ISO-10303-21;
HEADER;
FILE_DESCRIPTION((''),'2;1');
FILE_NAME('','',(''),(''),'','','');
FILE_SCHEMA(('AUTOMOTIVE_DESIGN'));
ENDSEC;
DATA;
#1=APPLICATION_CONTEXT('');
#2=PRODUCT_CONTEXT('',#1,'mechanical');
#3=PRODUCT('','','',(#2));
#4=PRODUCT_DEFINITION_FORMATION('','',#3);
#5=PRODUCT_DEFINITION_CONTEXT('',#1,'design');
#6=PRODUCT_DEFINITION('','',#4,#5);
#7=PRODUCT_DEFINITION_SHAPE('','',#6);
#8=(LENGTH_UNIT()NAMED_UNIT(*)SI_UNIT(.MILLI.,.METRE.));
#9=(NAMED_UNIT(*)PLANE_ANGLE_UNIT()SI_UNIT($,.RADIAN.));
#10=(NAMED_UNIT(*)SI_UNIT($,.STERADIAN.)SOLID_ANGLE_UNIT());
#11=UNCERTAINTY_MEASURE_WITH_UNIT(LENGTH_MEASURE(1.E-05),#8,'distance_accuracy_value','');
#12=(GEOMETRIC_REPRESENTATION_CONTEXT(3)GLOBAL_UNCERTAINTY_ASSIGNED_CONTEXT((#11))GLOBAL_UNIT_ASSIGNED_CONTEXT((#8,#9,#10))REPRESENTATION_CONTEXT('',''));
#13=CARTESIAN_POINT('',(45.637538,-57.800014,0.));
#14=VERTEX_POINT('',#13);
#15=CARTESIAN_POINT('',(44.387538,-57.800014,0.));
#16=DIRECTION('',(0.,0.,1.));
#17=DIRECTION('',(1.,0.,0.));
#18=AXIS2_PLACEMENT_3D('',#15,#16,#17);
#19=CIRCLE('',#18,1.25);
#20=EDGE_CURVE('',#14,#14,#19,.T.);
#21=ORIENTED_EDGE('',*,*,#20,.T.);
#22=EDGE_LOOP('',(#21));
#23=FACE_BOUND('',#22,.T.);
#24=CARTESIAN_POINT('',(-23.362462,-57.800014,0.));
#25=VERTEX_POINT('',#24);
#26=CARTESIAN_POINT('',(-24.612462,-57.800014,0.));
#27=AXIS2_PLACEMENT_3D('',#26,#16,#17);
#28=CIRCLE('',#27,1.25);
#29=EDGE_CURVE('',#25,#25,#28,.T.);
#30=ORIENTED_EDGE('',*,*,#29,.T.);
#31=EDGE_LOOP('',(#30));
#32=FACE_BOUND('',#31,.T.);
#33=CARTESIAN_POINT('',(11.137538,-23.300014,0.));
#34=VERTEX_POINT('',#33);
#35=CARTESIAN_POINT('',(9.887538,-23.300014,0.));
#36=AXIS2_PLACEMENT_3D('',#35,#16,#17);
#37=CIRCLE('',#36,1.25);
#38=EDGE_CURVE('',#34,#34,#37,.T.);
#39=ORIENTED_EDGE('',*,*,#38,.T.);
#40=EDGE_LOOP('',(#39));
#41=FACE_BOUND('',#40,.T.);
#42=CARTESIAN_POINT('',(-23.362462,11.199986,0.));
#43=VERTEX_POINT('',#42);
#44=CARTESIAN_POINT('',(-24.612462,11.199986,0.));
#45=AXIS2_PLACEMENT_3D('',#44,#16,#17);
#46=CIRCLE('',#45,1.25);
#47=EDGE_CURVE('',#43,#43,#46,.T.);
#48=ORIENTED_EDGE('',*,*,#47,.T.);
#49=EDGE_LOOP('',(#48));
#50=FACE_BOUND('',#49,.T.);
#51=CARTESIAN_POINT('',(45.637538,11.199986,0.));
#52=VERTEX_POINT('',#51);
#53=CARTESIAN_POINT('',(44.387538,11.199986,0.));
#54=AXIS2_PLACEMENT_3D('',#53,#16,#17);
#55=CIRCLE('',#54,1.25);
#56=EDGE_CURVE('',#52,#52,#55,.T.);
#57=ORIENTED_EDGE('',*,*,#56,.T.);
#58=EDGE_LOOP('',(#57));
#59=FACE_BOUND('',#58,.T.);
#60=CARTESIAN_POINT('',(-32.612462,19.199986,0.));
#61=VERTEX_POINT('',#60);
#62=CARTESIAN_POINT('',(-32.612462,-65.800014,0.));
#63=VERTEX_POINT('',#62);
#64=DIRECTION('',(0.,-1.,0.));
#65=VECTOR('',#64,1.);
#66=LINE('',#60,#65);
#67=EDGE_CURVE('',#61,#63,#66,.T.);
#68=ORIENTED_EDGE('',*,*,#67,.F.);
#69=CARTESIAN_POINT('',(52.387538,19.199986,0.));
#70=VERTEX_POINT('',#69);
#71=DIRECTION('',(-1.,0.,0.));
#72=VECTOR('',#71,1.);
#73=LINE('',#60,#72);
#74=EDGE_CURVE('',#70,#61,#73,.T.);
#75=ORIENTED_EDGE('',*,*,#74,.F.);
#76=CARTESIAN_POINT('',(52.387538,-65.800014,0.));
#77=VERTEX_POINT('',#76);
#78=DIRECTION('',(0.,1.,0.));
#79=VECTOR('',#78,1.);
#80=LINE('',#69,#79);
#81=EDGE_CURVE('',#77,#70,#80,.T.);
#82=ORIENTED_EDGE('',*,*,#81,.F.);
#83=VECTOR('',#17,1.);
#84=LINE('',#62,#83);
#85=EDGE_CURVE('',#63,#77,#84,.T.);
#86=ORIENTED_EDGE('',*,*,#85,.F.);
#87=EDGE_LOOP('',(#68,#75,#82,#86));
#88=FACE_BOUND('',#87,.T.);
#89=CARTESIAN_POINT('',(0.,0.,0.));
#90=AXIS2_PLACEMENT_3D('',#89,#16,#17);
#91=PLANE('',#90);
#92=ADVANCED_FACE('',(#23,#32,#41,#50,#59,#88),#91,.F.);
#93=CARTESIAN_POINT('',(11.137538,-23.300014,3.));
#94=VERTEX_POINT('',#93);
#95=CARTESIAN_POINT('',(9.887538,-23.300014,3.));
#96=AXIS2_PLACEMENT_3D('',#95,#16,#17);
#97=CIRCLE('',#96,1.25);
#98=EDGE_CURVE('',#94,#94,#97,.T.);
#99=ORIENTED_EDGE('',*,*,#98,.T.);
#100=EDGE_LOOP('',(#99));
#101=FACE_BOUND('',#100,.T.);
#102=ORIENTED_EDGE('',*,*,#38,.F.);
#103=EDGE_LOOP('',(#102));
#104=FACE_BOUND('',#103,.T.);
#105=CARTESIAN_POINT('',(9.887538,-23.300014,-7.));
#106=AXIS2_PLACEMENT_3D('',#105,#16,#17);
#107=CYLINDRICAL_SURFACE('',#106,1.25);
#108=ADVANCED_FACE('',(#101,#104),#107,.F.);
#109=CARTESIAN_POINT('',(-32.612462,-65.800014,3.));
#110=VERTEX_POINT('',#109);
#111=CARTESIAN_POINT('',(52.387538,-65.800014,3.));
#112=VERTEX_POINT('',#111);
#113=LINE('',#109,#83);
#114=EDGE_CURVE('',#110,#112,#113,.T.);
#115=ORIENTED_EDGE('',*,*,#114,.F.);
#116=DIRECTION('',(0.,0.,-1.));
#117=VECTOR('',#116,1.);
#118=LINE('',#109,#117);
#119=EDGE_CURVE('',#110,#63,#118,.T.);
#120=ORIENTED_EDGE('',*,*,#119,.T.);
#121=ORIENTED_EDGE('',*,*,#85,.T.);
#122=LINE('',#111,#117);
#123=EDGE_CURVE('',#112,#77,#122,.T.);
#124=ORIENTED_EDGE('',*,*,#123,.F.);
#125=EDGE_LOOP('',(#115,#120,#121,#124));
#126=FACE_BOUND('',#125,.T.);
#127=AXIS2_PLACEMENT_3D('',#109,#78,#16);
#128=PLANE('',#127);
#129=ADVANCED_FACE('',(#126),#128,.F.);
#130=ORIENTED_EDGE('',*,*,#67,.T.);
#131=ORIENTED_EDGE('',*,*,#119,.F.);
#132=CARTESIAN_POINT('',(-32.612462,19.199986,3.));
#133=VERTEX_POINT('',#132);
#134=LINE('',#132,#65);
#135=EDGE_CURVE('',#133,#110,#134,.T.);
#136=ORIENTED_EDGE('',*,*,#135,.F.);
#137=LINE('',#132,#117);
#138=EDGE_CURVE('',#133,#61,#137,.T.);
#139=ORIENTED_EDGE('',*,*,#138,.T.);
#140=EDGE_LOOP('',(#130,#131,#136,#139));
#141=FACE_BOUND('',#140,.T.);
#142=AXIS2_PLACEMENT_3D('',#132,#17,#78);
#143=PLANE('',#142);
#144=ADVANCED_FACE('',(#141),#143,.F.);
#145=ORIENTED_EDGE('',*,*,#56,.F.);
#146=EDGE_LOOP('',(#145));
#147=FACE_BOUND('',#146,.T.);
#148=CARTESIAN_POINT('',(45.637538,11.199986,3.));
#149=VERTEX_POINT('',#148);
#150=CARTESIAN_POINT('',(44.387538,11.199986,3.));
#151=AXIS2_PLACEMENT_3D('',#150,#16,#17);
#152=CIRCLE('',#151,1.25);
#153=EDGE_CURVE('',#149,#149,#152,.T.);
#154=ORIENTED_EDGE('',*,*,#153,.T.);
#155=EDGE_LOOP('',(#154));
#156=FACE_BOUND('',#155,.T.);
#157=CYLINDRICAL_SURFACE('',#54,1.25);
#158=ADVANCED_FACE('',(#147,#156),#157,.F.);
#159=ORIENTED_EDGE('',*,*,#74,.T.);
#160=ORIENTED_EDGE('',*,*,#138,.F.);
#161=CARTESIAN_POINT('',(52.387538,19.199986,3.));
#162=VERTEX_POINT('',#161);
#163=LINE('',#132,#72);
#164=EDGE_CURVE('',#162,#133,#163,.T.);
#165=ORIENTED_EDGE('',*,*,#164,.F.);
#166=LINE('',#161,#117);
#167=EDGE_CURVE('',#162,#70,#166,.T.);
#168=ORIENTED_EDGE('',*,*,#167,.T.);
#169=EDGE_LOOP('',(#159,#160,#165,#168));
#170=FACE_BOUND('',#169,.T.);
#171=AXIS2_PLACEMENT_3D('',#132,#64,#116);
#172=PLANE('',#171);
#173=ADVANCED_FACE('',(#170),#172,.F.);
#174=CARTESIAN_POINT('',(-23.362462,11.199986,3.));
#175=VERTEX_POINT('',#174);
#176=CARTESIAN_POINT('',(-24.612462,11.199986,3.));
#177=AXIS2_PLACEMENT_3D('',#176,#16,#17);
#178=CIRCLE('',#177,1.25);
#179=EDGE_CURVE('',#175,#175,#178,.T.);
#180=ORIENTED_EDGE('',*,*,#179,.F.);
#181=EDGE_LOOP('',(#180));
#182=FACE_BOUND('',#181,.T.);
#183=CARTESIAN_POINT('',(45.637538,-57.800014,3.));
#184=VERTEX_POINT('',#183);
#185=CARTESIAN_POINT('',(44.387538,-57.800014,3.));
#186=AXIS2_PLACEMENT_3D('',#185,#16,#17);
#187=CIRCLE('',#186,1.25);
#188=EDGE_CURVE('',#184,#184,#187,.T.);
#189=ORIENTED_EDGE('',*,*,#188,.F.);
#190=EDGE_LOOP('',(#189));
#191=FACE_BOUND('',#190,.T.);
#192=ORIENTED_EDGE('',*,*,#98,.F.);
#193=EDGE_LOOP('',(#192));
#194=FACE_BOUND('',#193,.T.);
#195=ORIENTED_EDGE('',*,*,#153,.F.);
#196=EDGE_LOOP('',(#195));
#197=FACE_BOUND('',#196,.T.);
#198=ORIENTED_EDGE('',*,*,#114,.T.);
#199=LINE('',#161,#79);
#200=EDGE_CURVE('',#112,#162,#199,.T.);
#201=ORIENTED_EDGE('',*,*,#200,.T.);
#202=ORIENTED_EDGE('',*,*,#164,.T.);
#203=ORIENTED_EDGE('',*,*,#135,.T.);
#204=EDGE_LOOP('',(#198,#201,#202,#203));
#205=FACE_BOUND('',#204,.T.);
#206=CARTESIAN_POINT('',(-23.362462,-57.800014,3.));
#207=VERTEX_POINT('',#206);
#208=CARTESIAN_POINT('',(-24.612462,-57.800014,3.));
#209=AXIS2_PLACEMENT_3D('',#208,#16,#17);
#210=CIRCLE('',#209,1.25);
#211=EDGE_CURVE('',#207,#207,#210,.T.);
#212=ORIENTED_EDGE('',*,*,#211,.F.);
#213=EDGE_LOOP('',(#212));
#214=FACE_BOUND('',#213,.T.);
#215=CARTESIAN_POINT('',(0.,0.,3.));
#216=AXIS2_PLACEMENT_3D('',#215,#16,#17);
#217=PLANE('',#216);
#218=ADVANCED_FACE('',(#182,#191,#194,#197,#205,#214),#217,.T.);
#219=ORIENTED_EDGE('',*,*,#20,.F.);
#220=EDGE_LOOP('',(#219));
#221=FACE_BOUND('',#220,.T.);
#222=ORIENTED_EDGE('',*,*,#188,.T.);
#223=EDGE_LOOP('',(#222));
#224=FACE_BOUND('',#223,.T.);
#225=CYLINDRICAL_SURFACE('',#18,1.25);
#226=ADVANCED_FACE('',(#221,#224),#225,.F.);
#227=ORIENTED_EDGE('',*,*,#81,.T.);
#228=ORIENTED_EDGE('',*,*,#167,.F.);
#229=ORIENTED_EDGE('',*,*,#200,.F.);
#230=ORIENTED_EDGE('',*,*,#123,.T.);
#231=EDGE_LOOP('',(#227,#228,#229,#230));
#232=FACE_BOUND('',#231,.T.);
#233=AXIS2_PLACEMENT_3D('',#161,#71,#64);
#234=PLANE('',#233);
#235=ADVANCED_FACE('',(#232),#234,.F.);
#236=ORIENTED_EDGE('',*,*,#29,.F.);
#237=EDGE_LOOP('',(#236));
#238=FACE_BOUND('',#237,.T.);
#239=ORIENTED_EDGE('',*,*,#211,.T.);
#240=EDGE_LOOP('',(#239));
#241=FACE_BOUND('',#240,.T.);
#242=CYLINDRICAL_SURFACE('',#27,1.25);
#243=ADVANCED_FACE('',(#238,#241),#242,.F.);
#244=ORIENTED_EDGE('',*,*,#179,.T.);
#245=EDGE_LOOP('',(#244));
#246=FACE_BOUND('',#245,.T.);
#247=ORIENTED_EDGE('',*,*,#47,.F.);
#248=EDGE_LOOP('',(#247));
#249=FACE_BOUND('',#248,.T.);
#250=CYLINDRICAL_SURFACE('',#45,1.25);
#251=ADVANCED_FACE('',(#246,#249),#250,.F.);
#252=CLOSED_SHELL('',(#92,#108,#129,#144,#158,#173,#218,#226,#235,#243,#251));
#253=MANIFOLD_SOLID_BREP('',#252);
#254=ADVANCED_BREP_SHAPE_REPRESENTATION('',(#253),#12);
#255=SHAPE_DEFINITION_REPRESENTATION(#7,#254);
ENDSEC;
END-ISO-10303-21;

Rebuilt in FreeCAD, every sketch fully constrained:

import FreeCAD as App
import Part
import Sketcher
Q = App.Units.Quantity


def add_polygon(sketch, points):
    """Adds a closed chain of lines whose ends are joined by coincident constraints."""
    first, n = sketch.GeometryCount, len(points)
    for a, b in zip(points, points[1:] + points[:1]):
        sketch.addGeometry(Part.LineSegment(App.Vector(*a, 0), App.Vector(*b, 0)), False)
    for i in range(n):
        sketch.addConstraint(Sketcher.Constraint("Coincident", first + i, 2, first + (i + 1) % n, 1))

doc = App.newDocument("Part")
params = doc.addObject("Spreadsheet::Sheet", "Params")
for row, (alias, value) in enumerate([
    ("sketch1_width", "85 mm"),
    ("pad1_length", "3 mm"),
    ("sketch2_diameter", "2.5 mm"),
    ("pocket1_length", "3 mm"),
    ("sketch3_diameter", "2.5 mm"),
    ("pocket2_length", "10 mm"),
], start=1):
    params.set(f"A{row}", alias)
    params.set(f"B{row}", "=" + value)
    params.setAlias(f"B{row}", alias)

body = doc.addObject("PartDesign::Body", "Body")

# Sketch on XY plane
sketch1 = body.newObject("Sketcher::SketchObject", "Sketch")
sketch1.AttachmentSupport = (doc.getObject("XY_Plane"), [""])
sketch1.MapMode = "FlatFace"
add_polygon(sketch1, [(-32.612462, 19.199986), (-32.612462, -65.800014), (52.387538, -65.800014), (52.387538, 19.199986)])  # lines 0-3
sketch1.addConstraint([
    Sketcher.Constraint("Vertical", 0),
    Sketcher.Constraint("Horizontal", 1),
    Sketcher.Constraint("Vertical", 2),
    Sketcher.Constraint("Horizontal", 3),
    Sketcher.Constraint("Equal", 3, 0),
    Sketcher.Constraint("DistanceX", 1, 1, 1, 2, Q("85 mm")),
    Sketcher.Constraint("DistanceX", 0, 2, -1, 1, Q("32.612462 mm")),
    Sketcher.Constraint("DistanceY", 0, 2, -1, 1, Q("65.800014 mm")),
])
sketch1.setExpression("Constraints[9]", "Params.sketch1_width")
pad1 = body.newObject("PartDesign::Pad", "Pad")
pad1.Profile = sketch1
pad1.setExpression("Length", "Params.pad1_length")

# Sketch on XY plane
sketch2 = body.newObject("Sketcher::SketchObject", "Sketch001")
sketch2.AttachmentSupport = (doc.getObject("XY_Plane"), [""])
sketch2.MapMode = "FlatFace"
sketch2.AttachmentOffset = App.Placement(App.Vector(0, 0, 3), App.Rotation())
sketch2.addGeometry([
    Part.Circle(App.Vector(-24.612462, 11.199986, 0), App.Vector(0, 0, 1), 1.25),
    Part.Circle(App.Vector(44.387538, 11.199986, 0), App.Vector(0, 0, 1), 1.25),
    Part.Circle(App.Vector(-24.612462, -57.800014, 0), App.Vector(0, 0, 1), 1.25),
    Part.Circle(App.Vector(44.387538, -57.800014, 0), App.Vector(0, 0, 1), 1.25),
], False)
sketch2.addConstraint([
    Sketcher.Constraint("Equal", 0, 1),
    Sketcher.Constraint("Equal", 1, 2),
    Sketcher.Constraint("Equal", 2, 3),
    Sketcher.Constraint("Horizontal", 0, 3, 1, 3),
    Sketcher.Constraint("Horizontal", 2, 3, 3, 3),
    Sketcher.Constraint("Vertical", 0, 3, 2, 3),
    Sketcher.Constraint("Vertical", 1, 3, 3, 3),
    Sketcher.Constraint("Diameter", 0, Q("2.5 mm")),
    Sketcher.Constraint("DistanceX", 0, 3, 1, 3, Q("69 mm")),
    Sketcher.Constraint("DistanceY", 2, 3, 0, 3, Q("69 mm")),
    Sketcher.Constraint("DistanceX", 0, 3, -1, 1, Q("24.612462 mm")),
    Sketcher.Constraint("DistanceY", -1, 1, 0, 3, Q("11.199986 mm")),
])
sketch2.setExpression("Constraints[7]", "Params.sketch2_diameter")
pocket1 = body.newObject("PartDesign::Pocket", "Pocket")
pocket1.Profile = sketch2
pocket1.setExpression("Length", "Params.pocket1_length")

# Sketch on XY plane
sketch3 = body.newObject("Sketcher::SketchObject", "Sketch002")
sketch3.AttachmentSupport = (doc.getObject("XY_Plane"), [""])
sketch3.MapMode = "FlatFace"
sketch3.AttachmentOffset = App.Placement(App.Vector(0, 0, 3), App.Rotation())
sketch3.addGeometry(Part.Circle(App.Vector(9.887538, -23.300014, 0), App.Vector(0, 0, 1), 1.25), False)
sketch3.addConstraint([
    Sketcher.Constraint("Diameter", 0, Q("2.5 mm")),
    Sketcher.Constraint("DistanceX", -1, 1, 0, 3, Q("9.887538 mm")),
    Sketcher.Constraint("DistanceY", 0, 3, -1, 1, Q("23.300014 mm")),
])
sketch3.setExpression("Constraints[0]", "Params.sketch3_diameter")
pocket2 = body.newObject("PartDesign::Pocket", "Pocket001")
pocket2.Profile = sketch3
pocket2.setExpression("Length", "Params.pocket2_length")

doc.recompute()
